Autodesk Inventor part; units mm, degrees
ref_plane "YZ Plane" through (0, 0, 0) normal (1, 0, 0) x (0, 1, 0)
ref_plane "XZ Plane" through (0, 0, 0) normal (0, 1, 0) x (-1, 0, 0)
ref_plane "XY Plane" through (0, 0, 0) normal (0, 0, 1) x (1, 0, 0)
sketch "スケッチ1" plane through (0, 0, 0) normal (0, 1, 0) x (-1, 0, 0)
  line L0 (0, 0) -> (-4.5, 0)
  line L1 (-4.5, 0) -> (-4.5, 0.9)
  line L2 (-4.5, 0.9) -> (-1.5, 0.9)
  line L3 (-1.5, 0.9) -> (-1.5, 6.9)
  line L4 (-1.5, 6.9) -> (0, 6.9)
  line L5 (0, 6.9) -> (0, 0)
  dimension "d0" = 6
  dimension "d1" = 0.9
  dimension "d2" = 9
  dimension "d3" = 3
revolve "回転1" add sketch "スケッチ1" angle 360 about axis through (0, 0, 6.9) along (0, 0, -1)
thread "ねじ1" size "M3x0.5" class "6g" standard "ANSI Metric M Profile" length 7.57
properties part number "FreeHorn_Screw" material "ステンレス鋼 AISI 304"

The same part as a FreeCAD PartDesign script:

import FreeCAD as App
import Part
import Sketcher
Q = App.Units.Quantity


def add_polygon(sketch, points):
    """Adds a closed chain of lines whose ends are joined by coincident constraints."""
    first, n = sketch.GeometryCount, len(points)
    for a, b in zip(points, points[1:] + points[:1]):
        sketch.addGeometry(Part.LineSegment(App.Vector(*a, 0), App.Vector(*b, 0)), False)
    for i in range(n):
        sketch.addConstraint(Sketcher.Constraint("Coincident", first + i, 2, first + (i + 1) % n, 1))

doc = App.newDocument("Part")
body = doc.addObject("PartDesign::Body", "Body")

# Sketch on XZ plane
sketch1 = body.newObject("Sketcher::SketchObject", "Sketch")
sketch1.AttachmentSupport = (doc.getObject("XZ_Plane"), [""])
sketch1.MapMode = "FlatFace"
add_polygon(sketch1, [(4.5, 0), (0, 0), (0, 6.9), (1.5, 6.9), (1.5, 0.9), (4.5, 0.9)])  # lines 0-5
sketch1.addConstraint([
    Sketcher.Constraint("Horizontal", 0),
    Sketcher.Constraint("Vertical", 1),
    Sketcher.Constraint("Horizontal", 2),
    Sketcher.Constraint("Vertical", 3),
    Sketcher.Constraint("Horizontal", 4),
    Sketcher.Constraint("Vertical", 5),
    Sketcher.Constraint("Coincident", 0, 2, -1, 1),
    Sketcher.Constraint("DistanceX", 4, 1, 4, 2, Q("3 mm")),
    Sketcher.Constraint("DistanceY", 3, 2, 3, 1, Q("6 mm")),
    Sketcher.Constraint("DistanceY", 5, 2, 5, 1, Q("0.9 mm")),
    Sketcher.Constraint("DistanceX", 0, 2, 0, 1, Q("4.5 mm")),
])
revolution = body.newObject("PartDesign::Revolution", "Revolution")
revolution.Profile = sketch1
revolution.ReferenceAxis = (sketch1, ["V_Axis"])
revolution.Angle = 360

doc.recompute()
